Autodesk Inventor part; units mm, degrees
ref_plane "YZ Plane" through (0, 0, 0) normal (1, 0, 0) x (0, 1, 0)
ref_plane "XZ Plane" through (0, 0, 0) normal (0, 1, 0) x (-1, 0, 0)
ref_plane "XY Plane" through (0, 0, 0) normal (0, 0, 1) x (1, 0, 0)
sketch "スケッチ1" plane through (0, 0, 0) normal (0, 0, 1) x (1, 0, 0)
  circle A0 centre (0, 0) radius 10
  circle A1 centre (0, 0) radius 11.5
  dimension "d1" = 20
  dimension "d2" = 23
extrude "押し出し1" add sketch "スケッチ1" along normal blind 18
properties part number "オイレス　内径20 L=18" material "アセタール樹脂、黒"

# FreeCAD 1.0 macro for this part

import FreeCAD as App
import Part
import Sketcher

V = App.Vector
Q = App.Units.Quantity

doc = App.newDocument("Part")
params = doc.addObject("Spreadsheet::Sheet", "Params")
for row, (alias, value) in enumerate([
    ("sketch1_diameter", "23 mm"),
    ("sketch1_diameter2", "20 mm"),
    ("pad1_length", "18 mm"),
], start=1):
    params.set(f"A{row}", alias)
    params.set(f"B{row}", "=" + value)
    params.setAlias(f"B{row}", alias)

body = doc.addObject("PartDesign::Body", "Body")

# Sketch on XY plane
sketch1 = body.newObject("Sketcher::SketchObject", "Sketch")
sketch1.AttachmentSupport = (doc.getObject("XY_Plane"), [""])
sketch1.MapMode = "FlatFace"
sketch1.addGeometry([
    Part.Circle(V(0, 0, 0), V(0, 0, 1), 11.5),
    Part.Circle(V(0, 0, 0), V(0, 0, 1), 10),
], False)
sketch1.addConstraint([
    Sketcher.Constraint("Coincident", 0, 3, -1, 1),
    Sketcher.Constraint("Coincident", 1, 3, -1, 1),
    Sketcher.Constraint("Diameter", 0, Q("23 mm")),
    Sketcher.Constraint("Diameter", 1, Q("20 mm")),
])
sketch1.setExpression("Constraints[2]", "Params.sketch1_diameter")
sketch1.setExpression("Constraints[3]", "Params.sketch1_diameter2")
pad1 = body.newObject("PartDesign::Pad", "Pad")
pad1.Profile = sketch1
pad1.setExpression("Length", "Params.pad1_length")

doc.recompute()
